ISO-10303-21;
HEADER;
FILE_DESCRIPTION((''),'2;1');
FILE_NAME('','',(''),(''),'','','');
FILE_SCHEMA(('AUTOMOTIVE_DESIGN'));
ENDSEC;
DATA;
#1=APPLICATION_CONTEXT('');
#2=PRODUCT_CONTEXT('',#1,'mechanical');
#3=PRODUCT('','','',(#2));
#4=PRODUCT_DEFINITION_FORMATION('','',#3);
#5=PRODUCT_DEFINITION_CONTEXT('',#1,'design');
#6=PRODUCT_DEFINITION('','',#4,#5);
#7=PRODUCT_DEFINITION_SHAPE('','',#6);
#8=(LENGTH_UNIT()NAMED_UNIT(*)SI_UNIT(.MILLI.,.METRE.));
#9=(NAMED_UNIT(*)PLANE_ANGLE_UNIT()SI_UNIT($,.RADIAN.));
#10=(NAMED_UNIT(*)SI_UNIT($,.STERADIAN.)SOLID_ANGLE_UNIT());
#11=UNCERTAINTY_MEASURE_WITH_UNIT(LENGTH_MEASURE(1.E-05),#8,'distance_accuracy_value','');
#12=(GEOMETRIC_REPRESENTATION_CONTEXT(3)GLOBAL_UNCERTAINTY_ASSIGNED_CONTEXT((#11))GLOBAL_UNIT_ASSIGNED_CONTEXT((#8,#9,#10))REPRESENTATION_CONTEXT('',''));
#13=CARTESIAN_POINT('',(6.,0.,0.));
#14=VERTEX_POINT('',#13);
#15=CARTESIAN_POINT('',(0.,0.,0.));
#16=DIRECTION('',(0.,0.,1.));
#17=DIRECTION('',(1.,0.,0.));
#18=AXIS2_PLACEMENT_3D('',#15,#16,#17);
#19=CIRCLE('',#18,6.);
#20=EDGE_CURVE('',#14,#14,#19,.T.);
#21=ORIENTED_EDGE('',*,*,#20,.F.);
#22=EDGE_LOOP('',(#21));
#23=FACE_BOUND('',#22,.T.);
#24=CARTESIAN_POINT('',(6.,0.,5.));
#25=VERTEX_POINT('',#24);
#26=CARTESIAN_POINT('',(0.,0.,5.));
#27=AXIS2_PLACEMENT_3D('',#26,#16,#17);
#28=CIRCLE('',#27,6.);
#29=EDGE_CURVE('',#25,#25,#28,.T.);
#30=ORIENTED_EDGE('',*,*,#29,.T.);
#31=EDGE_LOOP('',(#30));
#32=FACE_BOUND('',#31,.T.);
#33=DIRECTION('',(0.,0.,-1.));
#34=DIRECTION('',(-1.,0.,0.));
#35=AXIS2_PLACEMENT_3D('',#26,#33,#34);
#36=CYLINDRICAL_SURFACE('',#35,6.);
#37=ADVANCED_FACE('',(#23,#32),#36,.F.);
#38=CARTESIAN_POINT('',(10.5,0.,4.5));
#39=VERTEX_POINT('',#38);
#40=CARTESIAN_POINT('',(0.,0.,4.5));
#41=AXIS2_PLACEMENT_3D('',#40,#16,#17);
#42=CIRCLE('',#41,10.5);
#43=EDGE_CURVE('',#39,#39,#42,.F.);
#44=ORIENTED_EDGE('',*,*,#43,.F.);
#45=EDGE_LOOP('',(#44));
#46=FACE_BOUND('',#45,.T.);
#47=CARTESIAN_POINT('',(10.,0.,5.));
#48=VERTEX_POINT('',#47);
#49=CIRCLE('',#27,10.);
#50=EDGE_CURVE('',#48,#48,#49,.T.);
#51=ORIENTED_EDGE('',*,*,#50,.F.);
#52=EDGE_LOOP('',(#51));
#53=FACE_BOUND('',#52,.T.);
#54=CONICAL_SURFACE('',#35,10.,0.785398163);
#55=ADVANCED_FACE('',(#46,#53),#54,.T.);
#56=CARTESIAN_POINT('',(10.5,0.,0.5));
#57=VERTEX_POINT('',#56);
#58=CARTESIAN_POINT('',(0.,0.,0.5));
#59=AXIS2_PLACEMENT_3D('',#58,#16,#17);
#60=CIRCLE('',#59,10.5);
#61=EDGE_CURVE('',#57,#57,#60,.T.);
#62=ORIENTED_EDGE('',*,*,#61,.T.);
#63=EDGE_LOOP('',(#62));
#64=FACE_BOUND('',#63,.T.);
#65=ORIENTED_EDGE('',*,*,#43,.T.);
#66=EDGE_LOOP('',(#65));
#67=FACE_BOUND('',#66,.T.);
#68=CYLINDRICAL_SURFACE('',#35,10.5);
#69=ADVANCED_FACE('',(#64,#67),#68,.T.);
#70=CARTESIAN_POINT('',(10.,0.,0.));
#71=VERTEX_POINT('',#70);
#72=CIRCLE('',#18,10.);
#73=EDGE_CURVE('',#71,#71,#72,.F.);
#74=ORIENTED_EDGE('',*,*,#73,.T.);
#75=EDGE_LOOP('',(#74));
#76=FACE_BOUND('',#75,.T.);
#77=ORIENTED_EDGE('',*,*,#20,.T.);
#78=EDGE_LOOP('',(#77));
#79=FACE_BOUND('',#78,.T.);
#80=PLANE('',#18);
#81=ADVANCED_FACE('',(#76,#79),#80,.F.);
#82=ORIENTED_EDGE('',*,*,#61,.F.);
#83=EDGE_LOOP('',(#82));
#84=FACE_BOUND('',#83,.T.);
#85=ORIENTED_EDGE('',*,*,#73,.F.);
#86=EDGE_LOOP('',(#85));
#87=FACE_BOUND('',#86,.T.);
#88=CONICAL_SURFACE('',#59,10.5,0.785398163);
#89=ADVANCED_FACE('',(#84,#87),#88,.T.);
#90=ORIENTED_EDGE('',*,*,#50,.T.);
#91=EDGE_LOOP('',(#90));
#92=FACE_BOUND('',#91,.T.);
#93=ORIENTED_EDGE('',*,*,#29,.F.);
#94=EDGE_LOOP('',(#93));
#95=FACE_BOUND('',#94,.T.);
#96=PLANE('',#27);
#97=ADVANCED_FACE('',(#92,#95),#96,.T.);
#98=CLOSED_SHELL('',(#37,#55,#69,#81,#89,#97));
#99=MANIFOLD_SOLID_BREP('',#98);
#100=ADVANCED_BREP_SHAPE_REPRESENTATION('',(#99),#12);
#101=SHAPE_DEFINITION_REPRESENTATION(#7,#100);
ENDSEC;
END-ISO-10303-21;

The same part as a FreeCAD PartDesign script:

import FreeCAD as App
import Part
import Sketcher

V = App.Vector


def edges_at(feature, points):
    """Names of the edges that pass closest to the given points."""
    edges = feature.Shape.Edges
    near = lambda p: min(range(len(edges)), key=lambda i: edges[i].distToShape(Part.Vertex(*p))[0])
    return sorted({f"Edge{near(p) + 1}" for p in points})

doc = App.newDocument("Part")
body = doc.addObject("PartDesign::Body", "Body")

# Sketch on XY plane
sketch1 = body.newObject("Sketcher::SketchObject", "Sketch")
sketch1.AttachmentSupport = (doc.getObject("XY_Plane"), [""])
sketch1.MapMode = "FlatFace"
sketch1.addGeometry(Part.Circle(V(0, 0, 0), V(0, 0, 1), 10), False)
sketch1.addGeometry(Part.Circle(V(0, 0, 0), V(0, 0, 1), 6), False)
sketch1.addConstraint(Sketcher.Constraint("Coincident", 0, 3, -1, 1))
sketch1.addConstraint(Sketcher.Constraint("Coincident", 1, 3, -1, 1))
sketch1.addConstraint(Sketcher.Constraint("Diameter", 0, 21.0))
sketch1.addConstraint(Sketcher.Constraint("Diameter", 1, 12.0))
pad1 = body.newObject("PartDesign::Pad", "Pad")
pad1.Profile = sketch1
pad1.Length = 5
doc.recompute()

chamfer = body.newObject("PartDesign::Chamfer", "Chamfer")
chamfer.Base = (pad1, edges_at(pad1, [(-10.5, 0, 0), (-10.5, 0, 5)]))
chamfer.Size = 0.5

doc.recompute()
